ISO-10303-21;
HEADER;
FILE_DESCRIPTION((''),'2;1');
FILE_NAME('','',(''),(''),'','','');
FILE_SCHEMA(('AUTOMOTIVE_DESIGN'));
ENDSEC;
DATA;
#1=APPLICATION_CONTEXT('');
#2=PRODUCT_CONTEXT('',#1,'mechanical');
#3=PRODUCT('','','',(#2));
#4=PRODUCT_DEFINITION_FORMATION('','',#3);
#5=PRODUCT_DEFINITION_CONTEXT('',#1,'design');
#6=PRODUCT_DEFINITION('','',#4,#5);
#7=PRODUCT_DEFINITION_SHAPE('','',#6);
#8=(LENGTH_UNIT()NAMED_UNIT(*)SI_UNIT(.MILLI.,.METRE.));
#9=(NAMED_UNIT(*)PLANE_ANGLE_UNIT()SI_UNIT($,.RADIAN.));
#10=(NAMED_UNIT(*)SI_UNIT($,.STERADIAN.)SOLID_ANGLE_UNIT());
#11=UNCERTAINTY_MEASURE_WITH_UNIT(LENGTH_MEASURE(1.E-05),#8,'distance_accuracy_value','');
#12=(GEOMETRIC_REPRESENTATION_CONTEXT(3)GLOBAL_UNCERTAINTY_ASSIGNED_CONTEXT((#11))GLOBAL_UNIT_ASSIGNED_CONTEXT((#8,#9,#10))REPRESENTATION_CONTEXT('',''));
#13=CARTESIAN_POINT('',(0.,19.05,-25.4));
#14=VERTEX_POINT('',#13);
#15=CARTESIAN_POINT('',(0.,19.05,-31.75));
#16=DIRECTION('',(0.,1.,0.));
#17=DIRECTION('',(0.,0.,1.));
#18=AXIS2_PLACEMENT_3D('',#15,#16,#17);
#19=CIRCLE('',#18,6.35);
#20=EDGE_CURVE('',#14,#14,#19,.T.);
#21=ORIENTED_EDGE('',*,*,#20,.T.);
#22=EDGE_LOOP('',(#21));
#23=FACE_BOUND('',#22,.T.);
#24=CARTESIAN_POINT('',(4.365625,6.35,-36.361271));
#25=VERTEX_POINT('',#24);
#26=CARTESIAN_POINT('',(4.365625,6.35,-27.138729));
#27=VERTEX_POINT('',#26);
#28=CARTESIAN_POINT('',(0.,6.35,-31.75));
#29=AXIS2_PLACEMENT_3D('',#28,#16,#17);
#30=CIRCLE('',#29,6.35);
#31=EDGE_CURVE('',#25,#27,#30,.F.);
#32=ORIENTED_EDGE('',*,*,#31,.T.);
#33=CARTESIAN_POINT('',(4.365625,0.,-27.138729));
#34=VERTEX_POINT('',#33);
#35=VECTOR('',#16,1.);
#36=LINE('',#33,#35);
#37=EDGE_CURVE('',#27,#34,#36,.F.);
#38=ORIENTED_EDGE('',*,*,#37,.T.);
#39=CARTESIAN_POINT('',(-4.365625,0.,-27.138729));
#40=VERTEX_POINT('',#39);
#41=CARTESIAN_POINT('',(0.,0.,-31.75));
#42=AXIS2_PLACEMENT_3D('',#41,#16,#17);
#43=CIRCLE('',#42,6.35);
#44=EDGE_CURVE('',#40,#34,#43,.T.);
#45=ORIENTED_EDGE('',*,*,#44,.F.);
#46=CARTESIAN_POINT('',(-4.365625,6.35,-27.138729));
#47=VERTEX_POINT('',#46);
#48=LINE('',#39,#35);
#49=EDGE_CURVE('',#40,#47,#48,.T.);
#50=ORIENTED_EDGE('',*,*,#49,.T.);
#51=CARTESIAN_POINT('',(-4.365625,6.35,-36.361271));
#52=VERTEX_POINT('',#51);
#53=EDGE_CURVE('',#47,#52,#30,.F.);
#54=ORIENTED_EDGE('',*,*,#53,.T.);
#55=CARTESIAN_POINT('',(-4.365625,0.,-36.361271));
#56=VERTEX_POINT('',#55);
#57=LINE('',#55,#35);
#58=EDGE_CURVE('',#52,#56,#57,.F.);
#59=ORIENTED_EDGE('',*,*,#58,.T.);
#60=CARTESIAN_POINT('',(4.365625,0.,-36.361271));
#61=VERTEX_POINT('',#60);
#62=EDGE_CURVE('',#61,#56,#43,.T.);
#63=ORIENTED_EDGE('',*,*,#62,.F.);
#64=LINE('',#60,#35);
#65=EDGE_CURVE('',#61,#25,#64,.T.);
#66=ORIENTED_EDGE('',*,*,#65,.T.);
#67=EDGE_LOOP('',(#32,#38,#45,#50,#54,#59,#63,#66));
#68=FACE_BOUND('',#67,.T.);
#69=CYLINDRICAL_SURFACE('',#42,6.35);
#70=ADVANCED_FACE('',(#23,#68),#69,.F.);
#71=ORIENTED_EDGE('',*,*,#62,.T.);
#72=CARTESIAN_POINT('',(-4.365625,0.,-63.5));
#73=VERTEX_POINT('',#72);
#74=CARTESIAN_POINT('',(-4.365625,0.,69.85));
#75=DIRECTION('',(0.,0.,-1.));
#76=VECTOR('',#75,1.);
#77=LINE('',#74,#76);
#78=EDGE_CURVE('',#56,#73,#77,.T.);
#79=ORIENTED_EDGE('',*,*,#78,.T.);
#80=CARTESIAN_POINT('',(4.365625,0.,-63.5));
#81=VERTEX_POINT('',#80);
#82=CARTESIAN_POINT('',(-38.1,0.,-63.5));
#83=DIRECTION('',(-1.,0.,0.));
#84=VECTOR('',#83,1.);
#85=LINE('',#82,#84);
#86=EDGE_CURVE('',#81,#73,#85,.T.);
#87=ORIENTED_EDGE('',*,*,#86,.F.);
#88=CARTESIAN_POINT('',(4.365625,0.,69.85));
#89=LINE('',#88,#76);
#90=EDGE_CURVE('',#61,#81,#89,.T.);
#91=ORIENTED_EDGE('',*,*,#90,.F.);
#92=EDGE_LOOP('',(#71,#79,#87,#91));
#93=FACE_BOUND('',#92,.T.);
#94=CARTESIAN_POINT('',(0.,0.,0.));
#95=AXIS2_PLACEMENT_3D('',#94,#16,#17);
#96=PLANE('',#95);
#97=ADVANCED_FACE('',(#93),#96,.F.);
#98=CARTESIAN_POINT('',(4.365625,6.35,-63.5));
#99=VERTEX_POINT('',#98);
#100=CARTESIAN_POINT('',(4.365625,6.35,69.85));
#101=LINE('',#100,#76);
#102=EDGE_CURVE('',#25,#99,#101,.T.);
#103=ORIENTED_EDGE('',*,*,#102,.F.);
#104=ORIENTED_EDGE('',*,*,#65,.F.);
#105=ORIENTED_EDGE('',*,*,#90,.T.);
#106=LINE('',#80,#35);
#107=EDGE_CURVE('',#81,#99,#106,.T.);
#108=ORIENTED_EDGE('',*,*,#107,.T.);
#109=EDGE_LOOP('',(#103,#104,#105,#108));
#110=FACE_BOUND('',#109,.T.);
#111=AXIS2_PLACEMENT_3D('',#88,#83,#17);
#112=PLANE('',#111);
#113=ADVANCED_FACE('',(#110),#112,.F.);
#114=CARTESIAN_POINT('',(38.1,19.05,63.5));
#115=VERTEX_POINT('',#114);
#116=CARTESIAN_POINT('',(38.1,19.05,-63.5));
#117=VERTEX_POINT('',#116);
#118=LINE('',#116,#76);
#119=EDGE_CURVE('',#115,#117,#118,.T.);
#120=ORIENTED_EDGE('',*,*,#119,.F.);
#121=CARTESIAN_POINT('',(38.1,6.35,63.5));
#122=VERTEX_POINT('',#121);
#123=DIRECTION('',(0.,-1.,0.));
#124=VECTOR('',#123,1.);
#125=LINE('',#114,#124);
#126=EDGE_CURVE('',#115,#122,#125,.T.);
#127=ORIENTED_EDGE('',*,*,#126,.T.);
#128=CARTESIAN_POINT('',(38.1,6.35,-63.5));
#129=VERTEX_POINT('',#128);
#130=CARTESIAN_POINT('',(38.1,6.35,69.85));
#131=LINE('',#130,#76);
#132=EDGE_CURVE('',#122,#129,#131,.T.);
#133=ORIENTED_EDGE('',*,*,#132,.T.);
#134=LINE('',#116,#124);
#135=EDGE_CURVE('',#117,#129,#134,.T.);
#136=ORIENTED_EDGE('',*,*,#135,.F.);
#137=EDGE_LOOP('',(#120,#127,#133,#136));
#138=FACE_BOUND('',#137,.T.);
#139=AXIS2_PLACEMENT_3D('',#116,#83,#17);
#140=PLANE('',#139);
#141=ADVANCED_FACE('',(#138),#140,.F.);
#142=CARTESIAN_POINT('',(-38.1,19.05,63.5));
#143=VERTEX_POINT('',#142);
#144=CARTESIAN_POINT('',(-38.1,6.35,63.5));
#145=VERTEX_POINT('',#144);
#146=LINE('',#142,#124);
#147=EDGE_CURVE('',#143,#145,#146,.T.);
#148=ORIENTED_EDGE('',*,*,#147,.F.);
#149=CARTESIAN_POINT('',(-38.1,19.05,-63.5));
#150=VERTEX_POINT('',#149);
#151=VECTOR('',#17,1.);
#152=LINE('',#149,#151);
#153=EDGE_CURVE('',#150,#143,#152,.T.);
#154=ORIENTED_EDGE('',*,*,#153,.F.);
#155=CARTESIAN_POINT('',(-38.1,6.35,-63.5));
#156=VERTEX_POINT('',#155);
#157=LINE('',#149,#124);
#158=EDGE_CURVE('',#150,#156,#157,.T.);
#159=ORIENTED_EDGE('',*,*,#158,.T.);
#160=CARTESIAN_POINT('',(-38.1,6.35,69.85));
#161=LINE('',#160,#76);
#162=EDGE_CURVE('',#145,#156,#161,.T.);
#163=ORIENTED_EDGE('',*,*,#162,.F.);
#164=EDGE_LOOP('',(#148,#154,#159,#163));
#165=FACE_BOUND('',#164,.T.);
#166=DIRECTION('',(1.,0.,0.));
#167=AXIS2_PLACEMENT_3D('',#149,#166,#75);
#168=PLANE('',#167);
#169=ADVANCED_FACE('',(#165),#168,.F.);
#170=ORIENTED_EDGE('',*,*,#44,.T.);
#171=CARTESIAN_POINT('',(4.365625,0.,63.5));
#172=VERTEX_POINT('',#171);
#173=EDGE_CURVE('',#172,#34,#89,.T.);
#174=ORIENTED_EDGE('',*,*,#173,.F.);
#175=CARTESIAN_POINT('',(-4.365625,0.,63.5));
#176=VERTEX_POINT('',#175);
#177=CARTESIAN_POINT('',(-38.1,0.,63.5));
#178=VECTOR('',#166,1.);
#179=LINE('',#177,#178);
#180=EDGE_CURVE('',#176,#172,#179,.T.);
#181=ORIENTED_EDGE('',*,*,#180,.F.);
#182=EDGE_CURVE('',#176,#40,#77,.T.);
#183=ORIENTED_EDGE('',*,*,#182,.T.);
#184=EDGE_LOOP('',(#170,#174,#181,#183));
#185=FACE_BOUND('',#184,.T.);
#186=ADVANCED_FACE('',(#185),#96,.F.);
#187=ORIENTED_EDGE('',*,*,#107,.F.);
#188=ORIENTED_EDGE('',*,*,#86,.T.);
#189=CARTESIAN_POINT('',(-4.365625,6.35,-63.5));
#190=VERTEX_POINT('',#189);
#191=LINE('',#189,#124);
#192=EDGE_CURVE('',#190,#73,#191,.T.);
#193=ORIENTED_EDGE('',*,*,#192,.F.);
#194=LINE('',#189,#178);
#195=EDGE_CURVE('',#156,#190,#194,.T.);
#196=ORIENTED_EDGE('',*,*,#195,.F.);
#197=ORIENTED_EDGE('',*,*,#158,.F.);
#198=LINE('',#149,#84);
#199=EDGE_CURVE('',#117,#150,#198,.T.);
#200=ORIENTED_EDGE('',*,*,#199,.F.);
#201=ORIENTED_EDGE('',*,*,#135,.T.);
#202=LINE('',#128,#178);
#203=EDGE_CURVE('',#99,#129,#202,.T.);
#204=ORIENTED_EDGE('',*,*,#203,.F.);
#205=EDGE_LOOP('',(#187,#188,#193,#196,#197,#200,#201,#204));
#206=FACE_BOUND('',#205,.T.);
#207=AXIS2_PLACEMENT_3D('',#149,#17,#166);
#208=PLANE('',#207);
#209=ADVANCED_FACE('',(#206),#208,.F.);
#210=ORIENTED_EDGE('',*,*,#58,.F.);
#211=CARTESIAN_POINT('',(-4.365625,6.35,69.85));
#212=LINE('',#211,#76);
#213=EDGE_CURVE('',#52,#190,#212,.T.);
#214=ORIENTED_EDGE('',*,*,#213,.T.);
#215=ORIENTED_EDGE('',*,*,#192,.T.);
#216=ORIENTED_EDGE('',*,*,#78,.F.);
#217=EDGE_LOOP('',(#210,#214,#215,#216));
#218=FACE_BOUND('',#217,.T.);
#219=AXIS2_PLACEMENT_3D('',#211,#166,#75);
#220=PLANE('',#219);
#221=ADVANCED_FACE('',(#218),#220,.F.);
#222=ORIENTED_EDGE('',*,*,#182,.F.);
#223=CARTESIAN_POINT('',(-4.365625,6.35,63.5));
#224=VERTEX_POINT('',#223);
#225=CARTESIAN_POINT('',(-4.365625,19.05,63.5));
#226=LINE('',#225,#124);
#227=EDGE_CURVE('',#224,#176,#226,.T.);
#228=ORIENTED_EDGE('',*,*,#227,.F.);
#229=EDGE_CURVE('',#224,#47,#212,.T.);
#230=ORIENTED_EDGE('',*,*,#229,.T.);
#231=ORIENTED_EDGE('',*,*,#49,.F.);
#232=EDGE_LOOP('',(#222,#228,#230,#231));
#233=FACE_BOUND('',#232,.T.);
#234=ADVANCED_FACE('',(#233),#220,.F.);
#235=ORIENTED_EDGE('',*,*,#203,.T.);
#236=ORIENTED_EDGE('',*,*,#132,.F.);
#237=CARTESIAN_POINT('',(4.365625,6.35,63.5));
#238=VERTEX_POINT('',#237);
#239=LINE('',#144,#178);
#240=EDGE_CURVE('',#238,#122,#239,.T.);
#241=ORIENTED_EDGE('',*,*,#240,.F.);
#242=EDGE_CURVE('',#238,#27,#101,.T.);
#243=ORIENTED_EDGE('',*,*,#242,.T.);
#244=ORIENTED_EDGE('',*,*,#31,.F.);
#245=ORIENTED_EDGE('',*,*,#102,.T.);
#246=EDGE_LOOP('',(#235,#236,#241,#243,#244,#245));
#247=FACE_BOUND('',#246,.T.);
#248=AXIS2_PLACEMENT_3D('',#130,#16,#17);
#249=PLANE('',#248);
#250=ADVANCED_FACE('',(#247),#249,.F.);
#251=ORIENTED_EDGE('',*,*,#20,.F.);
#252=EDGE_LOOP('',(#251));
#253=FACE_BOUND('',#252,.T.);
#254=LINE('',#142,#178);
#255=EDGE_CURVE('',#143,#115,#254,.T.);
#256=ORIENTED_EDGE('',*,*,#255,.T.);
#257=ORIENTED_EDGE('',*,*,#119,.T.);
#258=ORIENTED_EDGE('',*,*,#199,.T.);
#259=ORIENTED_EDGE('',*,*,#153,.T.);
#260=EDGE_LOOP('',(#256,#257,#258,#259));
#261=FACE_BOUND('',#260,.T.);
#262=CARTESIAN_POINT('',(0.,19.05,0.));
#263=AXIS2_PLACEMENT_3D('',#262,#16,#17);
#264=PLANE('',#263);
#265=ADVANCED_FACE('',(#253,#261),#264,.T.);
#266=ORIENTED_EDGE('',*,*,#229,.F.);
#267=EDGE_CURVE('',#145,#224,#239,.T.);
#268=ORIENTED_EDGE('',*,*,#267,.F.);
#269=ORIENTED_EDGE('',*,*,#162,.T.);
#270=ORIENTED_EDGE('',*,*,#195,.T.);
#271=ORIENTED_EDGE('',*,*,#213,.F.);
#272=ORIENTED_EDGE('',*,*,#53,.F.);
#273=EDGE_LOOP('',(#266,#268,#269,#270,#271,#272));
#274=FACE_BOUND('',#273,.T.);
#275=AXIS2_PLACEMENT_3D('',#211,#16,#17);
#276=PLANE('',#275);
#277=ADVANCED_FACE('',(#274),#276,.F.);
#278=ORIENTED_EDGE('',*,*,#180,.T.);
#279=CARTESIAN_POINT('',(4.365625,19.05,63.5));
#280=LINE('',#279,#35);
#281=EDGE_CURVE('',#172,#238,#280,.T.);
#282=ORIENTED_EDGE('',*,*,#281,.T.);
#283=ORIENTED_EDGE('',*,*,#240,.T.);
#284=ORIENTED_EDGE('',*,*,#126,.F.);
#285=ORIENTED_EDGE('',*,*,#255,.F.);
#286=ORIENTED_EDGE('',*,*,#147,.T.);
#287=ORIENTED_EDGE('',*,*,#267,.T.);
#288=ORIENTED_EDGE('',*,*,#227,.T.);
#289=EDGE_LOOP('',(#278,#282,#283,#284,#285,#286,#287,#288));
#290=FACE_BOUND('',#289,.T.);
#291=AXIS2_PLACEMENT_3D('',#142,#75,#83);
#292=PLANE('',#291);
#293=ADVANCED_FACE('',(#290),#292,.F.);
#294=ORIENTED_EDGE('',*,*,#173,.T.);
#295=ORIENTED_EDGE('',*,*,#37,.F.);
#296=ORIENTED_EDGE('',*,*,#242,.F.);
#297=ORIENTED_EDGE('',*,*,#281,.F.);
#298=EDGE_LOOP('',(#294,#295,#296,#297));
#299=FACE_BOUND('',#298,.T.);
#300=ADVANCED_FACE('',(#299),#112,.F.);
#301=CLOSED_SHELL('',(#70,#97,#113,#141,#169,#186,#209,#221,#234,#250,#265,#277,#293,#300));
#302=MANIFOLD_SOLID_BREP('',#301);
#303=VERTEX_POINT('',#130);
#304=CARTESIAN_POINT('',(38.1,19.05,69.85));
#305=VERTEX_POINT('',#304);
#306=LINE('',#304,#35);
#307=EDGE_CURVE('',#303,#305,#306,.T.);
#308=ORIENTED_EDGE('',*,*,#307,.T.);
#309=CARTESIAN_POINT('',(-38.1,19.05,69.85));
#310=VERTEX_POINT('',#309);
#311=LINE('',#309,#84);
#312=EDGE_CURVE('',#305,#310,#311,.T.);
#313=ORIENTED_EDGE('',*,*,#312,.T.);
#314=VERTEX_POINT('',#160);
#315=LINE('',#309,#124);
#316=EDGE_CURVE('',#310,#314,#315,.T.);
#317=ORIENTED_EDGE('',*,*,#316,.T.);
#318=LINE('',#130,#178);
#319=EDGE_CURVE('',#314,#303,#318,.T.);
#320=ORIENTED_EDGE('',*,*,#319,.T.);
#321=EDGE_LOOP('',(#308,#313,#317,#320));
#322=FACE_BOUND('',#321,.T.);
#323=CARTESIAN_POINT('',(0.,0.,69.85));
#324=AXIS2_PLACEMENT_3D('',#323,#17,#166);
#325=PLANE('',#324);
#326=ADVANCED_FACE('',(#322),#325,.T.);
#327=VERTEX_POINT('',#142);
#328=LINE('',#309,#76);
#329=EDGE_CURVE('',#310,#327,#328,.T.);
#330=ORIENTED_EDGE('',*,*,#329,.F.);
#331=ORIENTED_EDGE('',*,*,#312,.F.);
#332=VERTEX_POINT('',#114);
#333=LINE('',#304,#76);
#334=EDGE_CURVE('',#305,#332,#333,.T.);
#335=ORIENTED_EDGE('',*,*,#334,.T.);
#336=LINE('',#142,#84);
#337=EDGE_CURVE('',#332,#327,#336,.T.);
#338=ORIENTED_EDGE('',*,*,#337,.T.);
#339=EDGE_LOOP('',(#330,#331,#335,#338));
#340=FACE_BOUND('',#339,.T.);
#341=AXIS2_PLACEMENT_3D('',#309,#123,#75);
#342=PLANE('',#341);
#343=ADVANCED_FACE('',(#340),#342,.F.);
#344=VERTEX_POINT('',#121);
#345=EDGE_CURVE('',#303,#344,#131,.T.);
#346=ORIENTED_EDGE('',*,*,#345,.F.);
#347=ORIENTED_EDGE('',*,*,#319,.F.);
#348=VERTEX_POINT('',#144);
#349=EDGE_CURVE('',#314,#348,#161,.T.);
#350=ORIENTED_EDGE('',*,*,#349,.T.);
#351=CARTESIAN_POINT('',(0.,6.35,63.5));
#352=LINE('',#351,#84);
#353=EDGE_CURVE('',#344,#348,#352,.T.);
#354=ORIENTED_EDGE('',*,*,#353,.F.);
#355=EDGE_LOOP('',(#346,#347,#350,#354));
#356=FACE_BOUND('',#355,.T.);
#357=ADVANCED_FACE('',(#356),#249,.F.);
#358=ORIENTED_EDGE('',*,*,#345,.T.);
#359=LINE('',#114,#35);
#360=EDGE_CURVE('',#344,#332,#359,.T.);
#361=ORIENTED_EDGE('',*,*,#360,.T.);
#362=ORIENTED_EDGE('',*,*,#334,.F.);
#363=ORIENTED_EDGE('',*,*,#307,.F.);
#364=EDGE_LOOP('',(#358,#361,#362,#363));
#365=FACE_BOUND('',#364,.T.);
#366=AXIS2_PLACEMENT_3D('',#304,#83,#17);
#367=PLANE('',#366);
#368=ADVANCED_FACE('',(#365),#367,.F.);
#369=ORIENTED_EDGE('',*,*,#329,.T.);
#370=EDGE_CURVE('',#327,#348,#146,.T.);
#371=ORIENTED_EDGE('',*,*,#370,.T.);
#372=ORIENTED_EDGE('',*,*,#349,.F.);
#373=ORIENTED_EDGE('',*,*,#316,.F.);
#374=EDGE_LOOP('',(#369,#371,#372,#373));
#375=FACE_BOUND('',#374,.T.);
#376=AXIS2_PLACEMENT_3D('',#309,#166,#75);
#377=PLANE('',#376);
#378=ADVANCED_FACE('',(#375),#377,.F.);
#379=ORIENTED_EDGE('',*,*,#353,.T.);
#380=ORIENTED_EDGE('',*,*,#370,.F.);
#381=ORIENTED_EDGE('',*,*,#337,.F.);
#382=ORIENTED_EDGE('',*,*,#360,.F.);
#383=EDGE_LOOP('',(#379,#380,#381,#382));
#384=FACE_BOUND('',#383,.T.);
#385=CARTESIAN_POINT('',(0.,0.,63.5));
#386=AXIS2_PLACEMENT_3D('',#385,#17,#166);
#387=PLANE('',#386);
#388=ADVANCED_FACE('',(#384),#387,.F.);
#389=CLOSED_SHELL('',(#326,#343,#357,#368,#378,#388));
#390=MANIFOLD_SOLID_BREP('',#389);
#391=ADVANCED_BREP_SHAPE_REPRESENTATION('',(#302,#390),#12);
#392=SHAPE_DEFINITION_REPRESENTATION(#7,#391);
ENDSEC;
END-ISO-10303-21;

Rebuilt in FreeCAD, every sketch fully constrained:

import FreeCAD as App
import Part
import Sketcher

V = App.Vector
Q = App.Units.Quantity

doc = App.newDocument("Part")
body = doc.addObject("PartDesign::Body", "Body")

sketch1 = doc.addObject("Sketcher::SketchObject", "Sketch")
body.addObject(sketch1)
sketch1.AttachmentSupport = (doc.XZ_Plane, [""])
sketch1.MapMode = "FlatFace"
sketch1.addGeometry(Part.LineSegment(V(-38, -64, 0), V(-38, 64, 0)), False)
sketch1.addGeometry(Part.LineSegment(V(-38, 64, 0), V(38, 64, 0)), False)
sketch1.addGeometry(Part.LineSegment(V(38, 64, 0), V(38, -64, 0)), False)
sketch1.addGeometry(Part.LineSegment(V(38, -64, 0), V(-38, -64, 0)), False)
sketch1.addConstraint(Sketcher.Constraint("Coincident", 0, 2, 1, 1))
sketch1.addConstraint(Sketcher.Constraint("Coincident", 1, 2, 2, 1))
sketch1.addConstraint(Sketcher.Constraint("Coincident", 2, 2, 3, 1))
sketch1.addConstraint(Sketcher.Constraint("Coincident", 3, 2, 0, 1))
sketch1.addConstraint(Sketcher.Constraint("Vertical", 0))
sketch1.addConstraint(Sketcher.Constraint("Horizontal", 1))
sketch1.addConstraint(Sketcher.Constraint("Vertical", 2))
sketch1.addConstraint(Sketcher.Constraint("Horizontal", 3))
sketch1.addConstraint(Sketcher.Constraint("Symmetric", 0, 2, 2, 2, -1, 1))
sketch1.addConstraint(Sketcher.Constraint("DistanceX", 1, 1, 1, 2, Q("3 in")))
sketch1.addConstraint(Sketcher.Constraint("DistanceY", 0, 1, 0, 2, Q("5 in")))
pad1 = doc.addObject("PartDesign::Pad", "Pad")
body.addObject(pad1)
pad1.Profile = sketch1
pad1.Length = Q("0.75 in")
pad1.Reversed = True

sketch2 = doc.addObject("Sketcher::SketchObject", "Sketch001")
body.addObject(sketch2)
sketch2.AttachmentSupport = (doc.XZ_Plane, [""])
sketch2.MapMode = "FlatFace"
sketch2.AttachmentOffset = App.Placement(V(0, 0, -0.75 * 25.4), App.Rotation())
sketch2.addGeometry(Part.Circle(V(0, -32, 0), V(0, 0, 1), 6), False)
sketch2.addConstraint(Sketcher.Constraint("PointOnObject", 0, 3, -2))
sketch2.addConstraint(Sketcher.Constraint("Diameter", 0, Q("0.5 in")))
sketch2.addConstraint(Sketcher.Constraint("DistanceY", 0, 3, -1, 1, Q("1.25 in")))
pocket1 = doc.addObject("PartDesign::Pocket", "Pocket")
body.addObject(pocket1)
pocket1.Profile = sketch2
pocket1.Type = "ThroughAll"
pocket1.Reversed = True
body2 = doc.addObject("PartDesign::Body", "Body001")

sketch3 = doc.addObject("Sketcher::SketchObject", "Sketch002")
body2.addObject(sketch3)
sketch3.AttachmentSupport = (doc.getObject("XY_Plane001"), [""])
sketch3.MapMode = "FlatFace"
sketch3.AttachmentOffset = App.Placement(V(0, 0, 2.5 * 25.4), App.Rotation())
sketch3.addGeometry(Part.LineSegment(V(-38, 19, 0), V(-38, 0, 0)), False)
sketch3.addGeometry(Part.LineSegment(V(-38, 0, 0), V(38, 0, 0)), False)
sketch3.addGeometry(Part.LineSegment(V(38, 0, 0), V(38, 19, 0)), False)
sketch3.addGeometry(Part.LineSegment(V(38, 19, 0), V(-38, 19, 0)), False)
sketch3.addConstraint(Sketcher.Constraint("Coincident", 0, 2, 1, 1))
sketch3.addConstraint(Sketcher.Constraint("Coincident", 1, 2, 2, 1))
sketch3.addConstraint(Sketcher.Constraint("Coincident", 2, 2, 3, 1))
sketch3.addConstraint(Sketcher.Constraint("Coincident", 3, 2, 0, 1))
sketch3.addConstraint(Sketcher.Constraint("Vertical", 0))
sketch3.addConstraint(Sketcher.Constraint("Horizontal", 1))
sketch3.addConstraint(Sketcher.Constraint("Vertical", 2))
sketch3.addConstraint(Sketcher.Constraint("Horizontal", 3))
sketch3.addConstraint(Sketcher.Constraint("Symmetric", 0, 2, 1, 2, -1, 1))
sketch3.addConstraint(Sketcher.Constraint("DistanceX", 1, 1, 1, 2, Q("3 in")))
sketch3.addConstraint(Sketcher.Constraint("DistanceY", 0, 2, 0, 1, Q("0.75 in")))
pad2 = doc.addObject("PartDesign::Pad", "Pad001")
body2.addObject(pad2)
pad2.Profile = sketch3
pad2.Length = Q("0.25 in")
body3 = doc.addObject("PartDesign::Body", "Body002")
body3.AllowCompound = True

sketch4 = doc.addObject("Sketcher::SketchObject", "Sketch003")
body3.addObject(sketch4)
sketch4.AttachmentSupport = (doc.getObject("XY_Plane002"), [""])
sketch4.MapMode = "FlatFace"
sketch4.AttachmentOffset = App.Placement(V(0, 0, -2.5 * 25.4), App.Rotation())
sketch4.addGeometry(Part.LineSegment(V(38, 6, 0), V(38, 0, 0)), False)
sketch4.addGeometry(Part.LineSegment(V(38, 0, 0), V(4, 0, 0)), False)
sketch4.addGeometry(Part.LineSegment(V(4, 0, 0), V(4, 6, 0)), False)
sketch4.addGeometry(Part.LineSegment(V(4, 6, 0), V(38, 6, 0)), False)
sketch4.addGeometry(Part.LineSegment(V(-4, 6, 0), V(-4, 0, 0)), False)
sketch4.addGeometry(Part.LineSegment(V(-4, 0, 0), V(-38, 0, 0)), False)
sketch4.addGeometry(Part.LineSegment(V(-38, 0, 0), V(-38, 6, 0)), False)
sketch4.addGeometry(Part.LineSegment(V(-38, 6, 0), V(-4, 6, 0)), False)
sketch4.addConstraint(Sketcher.Constraint("Coincident", 0, 2, 1, 1))
sketch4.addConstraint(Sketcher.Constraint("Coincident", 1, 2, 2, 1))
sketch4.addConstraint(Sketcher.Constraint("Coincident", 2, 2, 3, 1))
sketch4.addConstraint(Sketcher.Constraint("Coincident", 3, 2, 0, 1))
sketch4.addConstraint(Sketcher.Constraint("Coincident", 4, 2, 5, 1))
sketch4.addConstraint(Sketcher.Constraint("Coincident", 5, 2, 6, 1))
sketch4.addConstraint(Sketcher.Constraint("Coincident", 6, 2, 7, 1))
sketch4.addConstraint(Sketcher.Constraint("Coincident", 7, 2, 4, 1))
sketch4.addConstraint(Sketcher.Constraint("Vertical", 0))
sketch4.addConstraint(Sketcher.Constraint("Horizontal", 1))
sketch4.addConstraint(Sketcher.Constraint("Vertical", 2))
sketch4.addConstraint(Sketcher.Constraint("Horizontal", 3))
sketch4.addConstraint(Sketcher.Constraint("Vertical", 4))
sketch4.addConstraint(Sketcher.Constraint("Horizontal", 5))
sketch4.addConstraint(Sketcher.Constraint("Vertical", 6))
sketch4.addConstraint(Sketcher.Constraint("Horizontal", 7))
sketch4.addConstraint(Sketcher.Constraint("Symmetric", 1, 2, 4, 2, -1, 1))
sketch4.addConstraint(Sketcher.Constraint("Symmetric", 0, 2, 5, 2, -2))
sketch4.addConstraint(Sketcher.Constraint("Horizontal", 3, 2, 6, 2))
sketch4.addConstraint(Sketcher.Constraint("DistanceX", 5, 2, 0, 2, Q("3 in")))
sketch4.addConstraint(Sketcher.Constraint("DistanceY", 0, 2, 0, 1, Q("0.25 in")))
sketch4.addConstraint(Sketcher.Constraint("DistanceX", 1, 2, 1, 1, Q("1.328125 in")))
pad3 = doc.addObject("PartDesign::Pad", "Pad002")
body3.addObject(pad3)
pad3.Profile = sketch4
pad3.Length = 140.988339
doc.recompute()

body4 = doc.addObject("PartDesign::Body", "Body003")
body4.BaseFeature = body3
boolean = doc.addObject("PartDesign::Boolean", "Boolean")
body.addObject(boolean)
boolean.Type = "Cut"
boolean.addObjects([body4])
doc.recompute()

boolean2 = doc.addObject("PartDesign::Boolean", "Boolean001")
body2.addObject(boolean2)
boolean2.Type = "Cut"
boolean2.addObjects([body3])

sketch5 = doc.addObject("Sketcher::SketchObject", "Sketch004")
body2.addObject(sketch5)
sketch5.AttachmentSupport = (doc.getObject("XY_Plane001"), [""])
sketch5.MapMode = "FlatFace"
sketch5.AttachmentOffset = App.Placement(V(0, 0, 2.75 * 25.4), App.Rotation())
sketch5.addGeometry(Part.LineSegment(V(-4, 6, 0), V(-4, 0, 0)), False)
sketch5.addGeometry(Part.LineSegment(V(-4, 0, 0), V(4, 0, 0)), False)
sketch5.addGeometry(Part.LineSegment(V(4, 0, 0), V(4, 6, 0)), False)
sketch5.addGeometry(Part.LineSegment(V(4, 6, 0), V(-4, 6, 0)), False)
sketch5.addConstraint(Sketcher.Constraint("Coincident", 0, 2, 1, 1))
sketch5.addConstraint(Sketcher.Constraint("Coincident", 1, 2, 2, 1))
sketch5.addConstraint(Sketcher.Constraint("Coincident", 2, 2, 3, 1))
sketch5.addConstraint(Sketcher.Constraint("Coincident", 3, 2, 0, 1))
sketch5.addConstraint(Sketcher.Constraint("Vertical", 0))
sketch5.addConstraint(Sketcher.Constraint("Horizontal", 1))
sketch5.addConstraint(Sketcher.Constraint("Vertical", 2))
sketch5.addConstraint(Sketcher.Constraint("Horizontal", 3))
sketch5.addConstraint(Sketcher.Constraint("Symmetric", 0, 2, 1, 2, -1, 1))
sketch5.addConstraint(Sketcher.Constraint("DistanceY", 0, 2, 0, 1, Q("0.25 in")))
sketch5.addConstraint(Sketcher.Constraint("DistanceX", 1, 1, 1, 2, Q("0.34375 in")))
pocket2 = doc.addObject("PartDesign::Pocket", "Pocket001")
body2.addObject(pocket2)
pocket2.Profile = sketch5
pocket2.Length = Q("0.25 in")

doc.recompute()
